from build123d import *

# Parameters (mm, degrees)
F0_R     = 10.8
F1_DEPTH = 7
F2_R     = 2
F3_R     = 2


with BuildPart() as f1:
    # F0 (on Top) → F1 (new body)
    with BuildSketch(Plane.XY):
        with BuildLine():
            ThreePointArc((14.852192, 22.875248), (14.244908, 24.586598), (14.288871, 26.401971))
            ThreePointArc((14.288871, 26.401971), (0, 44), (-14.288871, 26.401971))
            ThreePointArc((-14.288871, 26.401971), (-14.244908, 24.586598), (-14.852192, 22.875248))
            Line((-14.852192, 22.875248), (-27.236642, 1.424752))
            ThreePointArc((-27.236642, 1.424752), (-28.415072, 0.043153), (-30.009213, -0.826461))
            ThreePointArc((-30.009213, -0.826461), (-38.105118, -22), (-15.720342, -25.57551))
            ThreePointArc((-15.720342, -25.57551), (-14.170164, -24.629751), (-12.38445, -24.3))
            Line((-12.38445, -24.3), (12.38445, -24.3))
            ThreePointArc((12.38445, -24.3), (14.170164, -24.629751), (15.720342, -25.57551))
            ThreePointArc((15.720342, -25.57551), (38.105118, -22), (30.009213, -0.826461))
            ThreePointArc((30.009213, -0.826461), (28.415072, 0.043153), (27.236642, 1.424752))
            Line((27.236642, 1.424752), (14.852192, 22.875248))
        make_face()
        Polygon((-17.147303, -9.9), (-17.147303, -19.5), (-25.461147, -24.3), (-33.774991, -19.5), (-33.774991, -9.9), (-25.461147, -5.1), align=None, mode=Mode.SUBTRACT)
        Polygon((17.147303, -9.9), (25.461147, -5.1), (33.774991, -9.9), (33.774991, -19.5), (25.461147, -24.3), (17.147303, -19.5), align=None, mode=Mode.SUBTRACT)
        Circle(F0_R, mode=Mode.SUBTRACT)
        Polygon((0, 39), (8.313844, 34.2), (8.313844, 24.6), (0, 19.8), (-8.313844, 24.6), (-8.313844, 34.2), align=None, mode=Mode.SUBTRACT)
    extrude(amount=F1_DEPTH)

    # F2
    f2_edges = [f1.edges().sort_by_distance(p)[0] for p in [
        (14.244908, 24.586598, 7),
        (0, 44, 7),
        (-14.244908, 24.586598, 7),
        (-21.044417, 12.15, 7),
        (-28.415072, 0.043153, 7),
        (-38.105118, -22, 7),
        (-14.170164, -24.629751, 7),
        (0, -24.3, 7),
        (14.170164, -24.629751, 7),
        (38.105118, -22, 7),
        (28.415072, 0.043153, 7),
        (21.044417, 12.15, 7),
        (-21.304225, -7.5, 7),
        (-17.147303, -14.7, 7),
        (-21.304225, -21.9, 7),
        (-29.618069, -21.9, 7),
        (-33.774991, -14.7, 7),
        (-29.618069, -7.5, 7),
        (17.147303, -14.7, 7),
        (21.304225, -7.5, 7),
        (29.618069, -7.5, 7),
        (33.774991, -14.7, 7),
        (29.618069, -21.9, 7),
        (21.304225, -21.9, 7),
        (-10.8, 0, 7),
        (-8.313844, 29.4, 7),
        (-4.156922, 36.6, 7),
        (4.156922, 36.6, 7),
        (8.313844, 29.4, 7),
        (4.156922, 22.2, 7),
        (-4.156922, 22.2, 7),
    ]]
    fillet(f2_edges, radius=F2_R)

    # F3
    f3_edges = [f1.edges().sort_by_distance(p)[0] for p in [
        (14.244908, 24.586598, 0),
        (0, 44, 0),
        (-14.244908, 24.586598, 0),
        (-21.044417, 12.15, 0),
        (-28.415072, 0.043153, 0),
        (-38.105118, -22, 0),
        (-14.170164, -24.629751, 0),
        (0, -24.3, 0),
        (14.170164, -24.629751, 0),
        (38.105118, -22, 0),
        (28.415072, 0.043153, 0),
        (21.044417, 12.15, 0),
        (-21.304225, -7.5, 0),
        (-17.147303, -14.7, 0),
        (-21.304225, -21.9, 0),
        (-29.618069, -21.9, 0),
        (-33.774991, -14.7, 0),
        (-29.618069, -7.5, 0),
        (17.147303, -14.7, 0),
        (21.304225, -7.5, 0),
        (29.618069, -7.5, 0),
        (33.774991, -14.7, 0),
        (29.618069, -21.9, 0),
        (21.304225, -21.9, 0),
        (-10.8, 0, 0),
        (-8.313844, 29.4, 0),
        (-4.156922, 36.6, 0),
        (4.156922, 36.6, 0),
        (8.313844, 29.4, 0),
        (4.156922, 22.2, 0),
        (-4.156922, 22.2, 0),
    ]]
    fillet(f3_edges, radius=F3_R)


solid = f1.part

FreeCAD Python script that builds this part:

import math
import FreeCAD as App
import Part
import Sketcher
Q = App.Units.Quantity


def edges_at(feature, points):
    """Names of the edges that pass closest to the given points."""
    edges = feature.Shape.Edges
    near = lambda p: min(range(len(edges)), key=lambda i: edges[i].distToShape(Part.Vertex(*p))[0])
    return sorted({f"Edge{near(p) + 1}" for p in points})

doc = App.newDocument("Part")
body = doc.addObject("PartDesign::Body", "Body")

# Sketch on XY plane
sketch1 = body.newObject("Sketcher::SketchObject", "Sketch")
sketch1.AttachmentSupport = (doc.getObject("XY_Plane"), [""])
sketch1.MapMode = "FlatFace"
sketch1.addGeometry([
    Part.ArcOfCircle(Part.Circle(App.Vector(19.2, 25.4, 0), App.Vector(0, 0, 1), 5), math.radians(168), math.radians(210)),  # 0
    Part.ArcOfCircle(Part.Circle(App.Vector(0, 29.4, 0), App.Vector(0, 0, 1), 14.6), math.radians(-12), math.radians(192)),  # 1
    Part.ArcOfCircle(Part.Circle(App.Vector(-19.2, 25.4, 0), App.Vector(0, 0, 1), 5), math.radians(-30), math.radians(12)),  # 2
    Part.LineSegment(App.Vector(-14.9, 22.9, 0), App.Vector(-27.2, 1.4, 0)),  # 3
    Part.ArcOfCircle(Part.Circle(App.Vector(-31.6, 3.9, 0), App.Vector(0, 0, 1), 5), math.radians(-72), math.radians(-30)),  # 4
    Part.ArcOfCircle(Part.Circle(App.Vector(-25.5, -14.7, 0), App.Vector(0, 0, 1), 14.6), math.radians(108), math.radians(312)),  # 5
    Part.ArcOfCircle(Part.Circle(App.Vector(-12.4, -29.3, 0), App.Vector(0, 0, 1), 5), math.radians(90), math.radians(132)),  # 6
    Part.LineSegment(App.Vector(-12.4, -24.3, 0), App.Vector(12.4, -24.3, 0)),  # 7
    Part.ArcOfCircle(Part.Circle(App.Vector(12.4, -29.3, 0), App.Vector(0, 0, 1), 5), math.radians(48), math.radians(90)),  # 8
    Part.ArcOfCircle(Part.Circle(App.Vector(25.5, -14.7, 0), App.Vector(0, 0, 1), 14.6), math.radians(-132), math.radians(72)),  # 9
    Part.ArcOfCircle(Part.Circle(App.Vector(31.6, 3.9, 0), App.Vector(0, 0, 1), 5), math.radians(-150), math.radians(-108)),  # 10
    Part.LineSegment(App.Vector(27.2, 1.4, 0), App.Vector(14.9, 22.9, 0)),  # 11
    Part.LineSegment(App.Vector(-25.5, -5.1, 0), App.Vector(-17.1, -9.9, 0)),  # 12
    Part.LineSegment(App.Vector(-17.1, -9.9, 0), App.Vector(-17.1, -19.5, 0)),  # 13
    Part.LineSegment(App.Vector(-17.1, -19.5, 0), App.Vector(-25.5, -24.3, 0)),  # 14
    Part.LineSegment(App.Vector(-25.5, -24.3, 0), App.Vector(-33.8, -19.5, 0)),  # 15
    Part.LineSegment(App.Vector(-33.8, -19.5, 0), App.Vector(-33.8, -9.9, 0)),  # 16
    Part.LineSegment(App.Vector(-33.8, -9.9, 0), App.Vector(-25.5, -5.1, 0)),  # 17
    Part.LineSegment(App.Vector(17.1, -19.5, 0), App.Vector(17.1, -9.9, 0)),  # 18
    Part.LineSegment(App.Vector(17.1, -9.9, 0), App.Vector(25.5, -5.1, 0)),  # 19
    Part.LineSegment(App.Vector(25.5, -5.1, 0), App.Vector(33.8, -9.9, 0)),  # 20
    Part.LineSegment(App.Vector(33.8, -9.9, 0), App.Vector(33.8, -19.5, 0)),  # 21
    Part.LineSegment(App.Vector(33.8, -19.5, 0), App.Vector(25.5, -24.3, 0)),  # 22
    Part.LineSegment(App.Vector(25.5, -24.3, 0), App.Vector(17.1, -19.5, 0)),  # 23
    Part.Circle(App.Vector(0, 0, 0), App.Vector(0, 0, 1), 10.8),  # 24
    Part.LineSegment(App.Vector(-8.3, 34.2, 0), App.Vector(0, 39, 0)),  # 25
    Part.LineSegment(App.Vector(0, 39, 0), App.Vector(8.3, 34.2, 0)),  # 26
    Part.LineSegment(App.Vector(8.3, 34.2, 0), App.Vector(8.3, 24.6, 0)),  # 27
    Part.LineSegment(App.Vector(8.3, 24.6, 0), App.Vector(0, 19.8, 0)),  # 28
    Part.LineSegment(App.Vector(0, 19.8, 0), App.Vector(-8.3, 24.6, 0)),  # 29
    Part.LineSegment(App.Vector(-8.3, 24.6, 0), App.Vector(-8.3, 34.2, 0)),  # 30
], False)
sketch1.addConstraint([
    Sketcher.Constraint("Tangent", 0, 1, 1, 1),
    Sketcher.Constraint("Tangent", 1, 2, 2, 2),
    Sketcher.Constraint("Tangent", 2, 1, 3, 1),
    Sketcher.Constraint("Tangent", 3, 2, 4, 2),
    Sketcher.Constraint("Tangent", 4, 1, 5, 1),
    Sketcher.Constraint("Tangent", 5, 2, 6, 2),
    Sketcher.Constraint("Tangent", 6, 1, 7, 1),
    Sketcher.Constraint("Tangent", 7, 2, 8, 2),
    Sketcher.Constraint("Tangent", 8, 1, 9, 1),
    Sketcher.Constraint("Tangent", 9, 2, 10, 2),
    Sketcher.Constraint("Tangent", 10, 1, 11, 1),
    Sketcher.Constraint("Tangent", 11, 2, 0, 2),
    Sketcher.Constraint("Coincident", 12, 2, 13, 1),
    Sketcher.Constraint("Coincident", 13, 2, 14, 1),
    Sketcher.Constraint("Coincident", 14, 2, 15, 1),
    Sketcher.Constraint("Coincident", 15, 2, 16, 1),
    Sketcher.Constraint("Coincident", 16, 2, 17, 1),
    Sketcher.Constraint("Coincident", 17, 2, 12, 1),
    Sketcher.Constraint("Coincident", 18, 2, 19, 1),
    Sketcher.Constraint("Coincident", 19, 2, 20, 1),
    Sketcher.Constraint("Coincident", 20, 2, 21, 1),
    Sketcher.Constraint("Coincident", 21, 2, 22, 1),
    Sketcher.Constraint("Coincident", 22, 2, 23, 1),
    Sketcher.Constraint("Coincident", 23, 2, 18, 1),
    Sketcher.Constraint("Coincident", 25, 2, 26, 1),
    Sketcher.Constraint("Coincident", 26, 2, 27, 1),
    Sketcher.Constraint("Coincident", 27, 2, 28, 1),
    Sketcher.Constraint("Coincident", 28, 2, 29, 1),
    Sketcher.Constraint("Coincident", 29, 2, 30, 1),
    Sketcher.Constraint("Coincident", 30, 2, 25, 1),
    Sketcher.Constraint("Horizontal", 7),
    Sketcher.Constraint("Vertical", 13),
    Sketcher.Constraint("Vertical", 16),
    Sketcher.Constraint("Vertical", 18),
    Sketcher.Constraint("Vertical", 21),
    Sketcher.Constraint("Vertical", 27),
    Sketcher.Constraint("Vertical", 30),
    Sketcher.Constraint("Coincident", 24, 3, -1, 1),
    Sketcher.Constraint("Equal", 0, 2),
    Sketcher.Constraint("Equal", 1, 5),
    Sketcher.Constraint("Equal", 2, 6),
    Sketcher.Constraint("Equal", 6, 8),
    Sketcher.Constraint("Equal", 5, 9),
    Sketcher.Constraint("Equal", 4, 10),
    Sketcher.Constraint("Symmetric", 0, 3, 2, 3, -2),
    Sketcher.Constraint("Symmetric", 5, 3, 9, 3, -2),
    Sketcher.Constraint("Symmetric", 12, 2, 18, 2, -2),
    Sketcher.Constraint("Symmetric", 17, 2, 19, 2, -2),
    Sketcher.Constraint("Symmetric", 16, 2, 20, 2, -2),
    Sketcher.Constraint("Symmetric", 14, 2, 22, 2, -2),
    Sketcher.Constraint("Symmetric", 27, 2, 29, 2, -2),
    Sketcher.Constraint("PointOnObject", 25, 2, -2),
    Sketcher.Constraint("PointOnObject", 28, 2, -2),
    Sketcher.Constraint("Perpendicular", 3, 12),
    Sketcher.Constraint("Perpendicular", 11, 14),
    Sketcher.Constraint("Parallel", 12, 15),
    Sketcher.Constraint("Parallel", 14, 17),
    Sketcher.Constraint("Parallel", 17, 19),
    Sketcher.Constraint("Parallel", 19, 22),
    Sketcher.Constraint("Parallel", 20, 23),
    Sketcher.Constraint("Parallel", 22, 25),
    Sketcher.Constraint("Parallel", 23, 26),
    Sketcher.Constraint("Parallel", 25, 28),
    Sketcher.Constraint("Horizontal", 7, 2, 14, 2),
    Sketcher.Constraint("Horizontal", 13, 2, 15, 2),
    Sketcher.Constraint("Horizontal", 12, 2, 16, 2),
    Sketcher.Constraint("Vertical", 5, 3, 14, 2),
    Sketcher.Constraint("Equal", 21, 27),
    Sketcher.Constraint("Equal", 23, 25),
    Sketcher.Constraint("Radius", 0, 5.0),
    Sketcher.Constraint("Diameter", 24, 21.6),
    Sketcher.Constraint("Radius", 1, 14.6),
    Sketcher.Constraint("Angle", 3, Q("-120.000001 deg")),
    Sketcher.Constraint("DistanceY", 13, 2, 13, 1, 9.6),
    Sketcher.Constraint("DistanceY", -1, 1, 25, 2, 39.0),
    Sketcher.Constraint("Distance", 12, 9.6),
    Sketcher.Constraint("DistanceY", -1, 1, 1, 3, 29.4),
    Sketcher.Constraint("DistanceY", 5, 3, -1, 1, 14.7),
    Sketcher.Constraint("DistanceY", 6, 3, -1, 1, 29.300001),
    Sketcher.Constraint("DistanceX", 7, 1, 7, 2, 24.7689),
    Sketcher.Constraint("Radius", 4, 4.999997),
    Sketcher.Constraint("Distance", 3, 24.768899),
])
pad1 = body.newObject("PartDesign::Pad", "Pad")
pad1.Profile = sketch1
pad1.Length = 7
doc.recompute()

fillet = body.newObject("PartDesign::Fillet", "Fillet")
fillet.Base = (pad1, edges_at(pad1, [
    (14.245, 24.587, 7),
    (0, 44, 7),
    (-14.245, 24.587, 7),
    (-21.044, 12.15, 7),
    (-28.415, 0.043, 7),
    (-38.105, -22, 7),
    (-14.17, -24.63, 7),
    (0, -24.3, 7),
    (14.17, -24.63, 7),
    (38.105, -22, 7),
    (28.415, 0.043, 7),
    (21.044, 12.15, 7),
    (-21.304, -7.5, 7),
    (-17.147, -14.7, 7),
    (-21.304, -21.9, 7),
    (-29.618, -21.9, 7),
    (-33.775, -14.7, 7),
    (-29.618, -7.5, 7),
    (17.147, -14.7, 7),
    (21.304, -7.5, 7),
    (29.618, -7.5, 7),
    (33.775, -14.7, 7),
    (29.618, -21.9, 7),
    (21.304, -21.9, 7),
    (-10.8, 0, 7),
    (-8.314, 29.4, 7),
    (-4.157, 36.6, 7),
    (4.157, 36.6, 7),
    (8.314, 29.4, 7),
    (4.157, 22.2, 7),
    (-4.157, 22.2, 7),
]))
fillet.Radius = 2
doc.recompute()

fillet2 = body.newObject("PartDesign::Fillet", "Fillet001")
fillet2.Base = (fillet, edges_at(fillet, [
    (14.245, 24.587, 0),
    (0, 44, 0),
    (-14.245, 24.587, 0),
    (-21.044, 12.15, 0),
    (-28.415, 0.043, 0),
    (-38.105, -22, 0),
    (-14.17, -24.63, 0),
    (0, -24.3, 0),
    (14.17, -24.63, 0),
    (38.105, -22, 0),
    (28.415, 0.043, 0),
    (21.044, 12.15, 0),
    (-21.304, -7.5, 0),
    (-17.147, -14.7, 0),
    (-21.304, -21.9, 0),
    (-29.618, -21.9, 0),
    (-33.775, -14.7, 0),
    (-29.618, -7.5, 0),
    (17.147, -14.7, 0),
    (21.304, -7.5, 0),
    (29.618, -7.5, 0),
    (33.775, -14.7, 0),
    (29.618, -21.9, 0),
    (21.304, -21.9, 0),
    (-10.8, 0, 0),
    (-8.314, 29.4, 0),
    (-4.157, 36.6, 0),
    (4.157, 36.6, 0),
    (8.314, 29.4, 0),
    (4.157, 22.2, 0),
    (-4.157, 22.2, 0),
]))
fillet2.Radius = 2

doc.recompute()
